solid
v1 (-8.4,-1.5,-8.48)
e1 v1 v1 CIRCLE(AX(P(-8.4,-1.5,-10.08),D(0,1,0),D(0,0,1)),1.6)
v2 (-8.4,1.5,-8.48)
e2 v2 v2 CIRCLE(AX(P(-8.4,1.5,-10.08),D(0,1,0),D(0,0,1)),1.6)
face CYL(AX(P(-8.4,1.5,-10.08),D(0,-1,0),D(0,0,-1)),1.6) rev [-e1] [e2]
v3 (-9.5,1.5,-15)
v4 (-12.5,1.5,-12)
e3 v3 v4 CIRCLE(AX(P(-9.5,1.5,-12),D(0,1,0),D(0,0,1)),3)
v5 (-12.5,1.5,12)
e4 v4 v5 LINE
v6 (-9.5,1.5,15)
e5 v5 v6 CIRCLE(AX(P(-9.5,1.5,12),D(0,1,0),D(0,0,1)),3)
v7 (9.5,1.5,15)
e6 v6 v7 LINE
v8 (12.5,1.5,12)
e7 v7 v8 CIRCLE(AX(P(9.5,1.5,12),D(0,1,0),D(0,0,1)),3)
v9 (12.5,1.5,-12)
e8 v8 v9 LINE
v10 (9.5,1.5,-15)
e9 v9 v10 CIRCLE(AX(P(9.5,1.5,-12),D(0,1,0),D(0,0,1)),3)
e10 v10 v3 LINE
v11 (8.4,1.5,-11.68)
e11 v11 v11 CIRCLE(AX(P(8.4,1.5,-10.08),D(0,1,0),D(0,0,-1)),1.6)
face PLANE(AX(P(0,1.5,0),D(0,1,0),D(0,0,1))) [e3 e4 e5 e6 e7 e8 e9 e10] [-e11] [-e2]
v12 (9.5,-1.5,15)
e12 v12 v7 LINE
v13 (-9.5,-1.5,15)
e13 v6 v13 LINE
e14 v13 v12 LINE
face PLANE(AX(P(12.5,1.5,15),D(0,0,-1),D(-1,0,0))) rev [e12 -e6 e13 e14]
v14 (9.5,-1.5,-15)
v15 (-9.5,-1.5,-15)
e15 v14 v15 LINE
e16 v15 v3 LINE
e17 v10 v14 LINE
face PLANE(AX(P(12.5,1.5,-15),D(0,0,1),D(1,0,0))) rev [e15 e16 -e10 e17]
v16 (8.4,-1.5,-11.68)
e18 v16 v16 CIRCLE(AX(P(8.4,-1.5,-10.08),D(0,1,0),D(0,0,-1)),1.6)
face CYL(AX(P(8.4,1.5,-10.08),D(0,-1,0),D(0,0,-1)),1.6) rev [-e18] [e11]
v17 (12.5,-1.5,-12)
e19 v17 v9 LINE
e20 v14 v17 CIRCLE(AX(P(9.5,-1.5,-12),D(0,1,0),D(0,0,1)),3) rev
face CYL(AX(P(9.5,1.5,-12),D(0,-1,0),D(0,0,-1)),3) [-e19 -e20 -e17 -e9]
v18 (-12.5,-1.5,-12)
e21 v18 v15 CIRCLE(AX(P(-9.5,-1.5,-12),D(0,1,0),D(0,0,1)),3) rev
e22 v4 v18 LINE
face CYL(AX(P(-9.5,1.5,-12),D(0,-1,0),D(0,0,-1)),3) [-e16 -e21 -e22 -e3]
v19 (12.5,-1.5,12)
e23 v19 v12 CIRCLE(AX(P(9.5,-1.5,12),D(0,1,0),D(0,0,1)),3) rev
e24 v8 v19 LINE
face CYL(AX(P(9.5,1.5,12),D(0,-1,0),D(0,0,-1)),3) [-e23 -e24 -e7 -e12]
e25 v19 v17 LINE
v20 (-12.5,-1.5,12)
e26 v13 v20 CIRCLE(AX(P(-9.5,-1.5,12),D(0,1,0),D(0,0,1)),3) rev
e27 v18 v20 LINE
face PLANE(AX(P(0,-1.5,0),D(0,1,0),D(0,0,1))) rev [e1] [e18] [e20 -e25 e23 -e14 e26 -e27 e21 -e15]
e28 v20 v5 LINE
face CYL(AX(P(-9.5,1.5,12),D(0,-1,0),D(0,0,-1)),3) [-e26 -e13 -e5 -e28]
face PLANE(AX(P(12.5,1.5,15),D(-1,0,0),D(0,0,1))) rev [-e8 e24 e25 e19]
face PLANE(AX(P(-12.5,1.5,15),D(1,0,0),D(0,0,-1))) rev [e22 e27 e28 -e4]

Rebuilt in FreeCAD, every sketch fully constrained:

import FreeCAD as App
import Part
import Sketcher
from FreeCAD import Vector
Q = App.Units.Quantity


def edges_at(feature, points):
    """Names of the edges that pass closest to the given points."""
    edges = feature.Shape.Edges
    near = lambda p: min(range(len(edges)), key=lambda i: edges[i].distToShape(Part.Vertex(*p))[0])
    return sorted({f"Edge{near(p) + 1}" for p in points})


def add_polygon(sketch, points):
    """Adds a closed chain of lines whose ends are joined by coincident constraints."""
    first, n = sketch.GeometryCount, len(points)
    for a, b in zip(points, points[1:] + points[:1]):
        sketch.addGeometry(Part.LineSegment(App.Vector(*a, 0), App.Vector(*b, 0)), False)
    for i in range(n):
        sketch.addConstraint(Sketcher.Constraint("Coincident", first + i, 2, first + (i + 1) % n, 1))

doc = App.newDocument("Part")
body = doc.addObject("PartDesign::Body", "Body")

# Sketch on XZ plane
sketch1 = body.newObject("Sketcher::SketchObject", "Sketch")
sketch1.AttachmentSupport = (doc.getObject("XZ_Plane"), [""])
sketch1.MapMode = "FlatFace"
add_polygon(sketch1, [(-12.5, -15), (-12.5, 15), (12.5, 15), (12.5, -15)])  # lines 0-3
sketch1.addGeometry(Part.Circle(Vector(-8.4, -10.1, 0), Vector(0, 0, 1), 1.6), False)  # 4
sketch1.addGeometry(Part.Circle(Vector(8.4, -10.1, 0), Vector(0, 0, 1), 1.6), False)  # 5
sketch1.addConstraint([
    Sketcher.Constraint("Vertical", 0),
    Sketcher.Constraint("Horizontal", 1),
    Sketcher.Constraint("Vertical", 2),
    Sketcher.Constraint("Horizontal", 3),
    Sketcher.Constraint("Equal", 4, 5),
    Sketcher.Constraint("Symmetric", 0, 2, 2, 2, -1, 1),
    Sketcher.Constraint("Symmetric", 4, 3, 5, 3, -2),
    Sketcher.Constraint("Diameter", 4, Q("3.2 mm")),
    Sketcher.Constraint("DistanceX", 1, 1, 1, 2, Q("25 mm")),
    Sketcher.Constraint("DistanceY", 0, 1, 0, 2, Q("30 mm")),
    Sketcher.Constraint("DistanceX", 4, 3, -1, 1, Q("8.4 mm")),
    Sketcher.Constraint("DistanceY", 4, 3, -1, 1, Q("10.08 mm")),
])
pad1 = body.newObject("PartDesign::Pad", "Pad")
pad1.Profile = sketch1
pad1.Length = 3
pad1.Midplane = True
doc.recompute()

fillet = body.newObject("PartDesign::Fillet", "Fillet")
fillet.Base = (pad1, edges_at(pad1, [
    (-12.5, 0, -15),
    (12.5, 0, -15),
    (12.5, 0, 15),
    (-12.5, 0, 15),
]))
fillet.Radius = 3

doc.recompute()
